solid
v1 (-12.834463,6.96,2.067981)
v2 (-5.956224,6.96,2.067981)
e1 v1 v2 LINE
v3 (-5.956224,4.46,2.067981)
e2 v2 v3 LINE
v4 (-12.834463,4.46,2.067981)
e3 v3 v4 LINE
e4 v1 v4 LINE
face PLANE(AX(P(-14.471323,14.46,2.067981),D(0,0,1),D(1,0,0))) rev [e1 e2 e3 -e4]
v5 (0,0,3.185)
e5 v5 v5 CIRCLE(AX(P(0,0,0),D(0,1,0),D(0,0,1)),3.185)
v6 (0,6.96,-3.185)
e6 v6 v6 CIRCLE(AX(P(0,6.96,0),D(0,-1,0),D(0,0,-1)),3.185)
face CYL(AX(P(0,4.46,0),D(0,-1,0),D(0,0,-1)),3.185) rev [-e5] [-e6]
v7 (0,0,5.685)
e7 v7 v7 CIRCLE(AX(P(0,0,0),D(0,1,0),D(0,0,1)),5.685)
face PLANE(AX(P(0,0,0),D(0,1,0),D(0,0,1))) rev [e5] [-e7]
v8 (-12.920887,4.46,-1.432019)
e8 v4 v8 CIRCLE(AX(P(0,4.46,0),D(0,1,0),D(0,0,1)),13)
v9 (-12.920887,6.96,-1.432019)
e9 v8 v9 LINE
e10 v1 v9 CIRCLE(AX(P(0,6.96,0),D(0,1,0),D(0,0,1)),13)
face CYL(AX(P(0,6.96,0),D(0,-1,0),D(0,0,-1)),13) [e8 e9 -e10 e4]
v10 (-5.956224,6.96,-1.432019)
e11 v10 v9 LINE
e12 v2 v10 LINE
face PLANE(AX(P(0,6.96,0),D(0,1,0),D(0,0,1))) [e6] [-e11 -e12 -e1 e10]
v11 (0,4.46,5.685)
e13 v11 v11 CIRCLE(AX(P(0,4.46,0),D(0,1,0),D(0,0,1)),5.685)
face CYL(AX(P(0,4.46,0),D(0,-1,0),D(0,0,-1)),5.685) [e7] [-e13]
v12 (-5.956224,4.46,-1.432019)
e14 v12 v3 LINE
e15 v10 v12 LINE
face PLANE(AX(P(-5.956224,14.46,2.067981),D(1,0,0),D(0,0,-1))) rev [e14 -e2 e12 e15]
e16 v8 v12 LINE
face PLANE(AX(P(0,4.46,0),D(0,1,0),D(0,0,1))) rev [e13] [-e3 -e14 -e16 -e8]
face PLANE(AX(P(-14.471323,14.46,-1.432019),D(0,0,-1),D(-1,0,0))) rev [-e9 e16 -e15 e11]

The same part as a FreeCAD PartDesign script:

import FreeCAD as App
import Part
import Sketcher


def add_polygon(sketch, points):
    """Adds a closed chain of lines whose ends are joined by coincident constraints."""
    first, n = sketch.GeometryCount, len(points)
    for a, b in zip(points, points[1:] + points[:1]):
        sketch.addGeometry(Part.LineSegment(App.Vector(*a, 0), App.Vector(*b, 0)), False)
    for i in range(n):
        sketch.addConstraint(Sketcher.Constraint("Coincident", first + i, 2, first + (i + 1) % n, 1))

doc = App.newDocument("Part")
params = doc.addObject("Spreadsheet::Sheet", "Params")
for row, (alias, value) in enumerate([
    ("sketch1_diameter", "11.37 mm"),
    ("sketch1_diameter2", "6.37 mm"),
    ("pad1_length", "4.46 mm"),
    ("sketch2_diameter", "26 mm"),
    ("pad2_length", "2.5 mm"),
    ("sketch3_diameter", "6.37 mm"),
    ("pocket1_length", "2.5 mm"),
    ("sketch4_height", "3.5 mm"),
    ("pocket2_length", "10 mm"),
], start=1):
    params.set(f"A{row}", alias)
    params.set(f"B{row}", "=" + value)
    params.setAlias(f"B{row}", alias)

body = doc.addObject("PartDesign::Body", "Body")

sketch1 = body.newObject("Sketcher::SketchObject", "Sketch")
sketch1.AttachmentSupport = (doc.getObject("XZ_Plane"), [""])
sketch1.MapMode = "FlatFace"
sketch1.addGeometry([
    Part.Circle(App.Vector(0, 0, 0), App.Vector(0, 0, 1), 5.7),
    Part.Circle(App.Vector(0, 0, 0), App.Vector(0, 0, 1), 3.2),
], False)
sketch1.addConstraint([
    Sketcher.Constraint("Coincident", 0, 3, -1, 1),
    Sketcher.Constraint("Coincident", 1, 3, -1, 1),
    Sketcher.Constraint("Diameter", 0, 11.37),
    Sketcher.Constraint("Diameter", 1, 6.37),
])
sketch1.setExpression("Constraints[2]", "Params.sketch1_diameter")
sketch1.setExpression("Constraints[3]", "Params.sketch1_diameter2")
pad1 = body.newObject("PartDesign::Pad", "Pad")
pad1.Profile = sketch1
pad1.setExpression("Length", "Params.pad1_length")
pad1.Reversed = True

sketch2 = body.newObject("Sketcher::SketchObject", "Sketch001")
sketch2.AttachmentSupport = (doc.getObject("XZ_Plane"), [""])
sketch2.MapMode = "FlatFace"
sketch2.AttachmentOffset = App.Placement(App.Vector(0, 0, -4.46), App.Rotation())
sketch2.addGeometry(Part.Circle(App.Vector(0, 0, 0), App.Vector(0, 0, 1), 13), False)
sketch2.addConstraint([
    Sketcher.Constraint("Coincident", 0, 3, -1, 1),
    Sketcher.Constraint("Diameter", 0, 26.0),
])
sketch2.setExpression("Constraints[1]", "Params.sketch2_diameter")
pad2 = body.newObject("PartDesign::Pad", "Pad001")
pad2.Profile = sketch2
pad2.setExpression("Length", "Params.pad2_length")
pad2.Reversed = True

sketch3 = body.newObject("Sketcher::SketchObject", "Sketch002")
sketch3.AttachmentSupport = (doc.getObject("XZ_Plane"), [""])
sketch3.MapMode = "FlatFace"
sketch3.AttachmentOffset = App.Placement(App.Vector(0, 0, -4.46), App.Rotation())
sketch3.addGeometry(Part.Circle(App.Vector(0, 0, 0), App.Vector(0, 0, 1), 3.2), False)
sketch3.addConstraint([
    Sketcher.Constraint("Coincident", 0, 3, -1, 1),
    Sketcher.Constraint("Diameter", 0, 6.37),
])
sketch3.setExpression("Constraints[1]", "Params.sketch3_diameter")
pocket1 = body.newObject("PartDesign::Pocket", "Pocket")
pocket1.Profile = sketch3
pocket1.setExpression("Length", "Params.pocket1_length")

sketch4 = body.newObject("Sketcher::SketchObject", "Sketch003")
sketch4.AttachmentSupport = (doc.getObject("XZ_Plane"), [""])
sketch4.MapMode = "FlatFace"
sketch4.AttachmentOffset = App.Placement(App.Vector(0, 0, -4.46), App.Rotation())
add_polygon(sketch4, [(-14.5, 2.1), (-14.5, -1.4), (-6, -1.4), (-6, 2.1)])
sketch4.addConstraint([
    Sketcher.Constraint("Vertical", 0),
    Sketcher.Constraint("Horizontal", 1),
    Sketcher.Constraint("Vertical", 2),
    Sketcher.Constraint("Horizontal", 3),
    Sketcher.Constraint("DistanceY", 0, 2, 0, 1, 3.5),
    Sketcher.Constraint("DistanceX", 1, 1, 1, 2, 8.515099),
    Sketcher.Constraint("DistanceY", 0, 2, -1, 1, 1.432019),
    Sketcher.Constraint("DistanceX", 0, 2, -1, 1, 14.471323),
])
sketch4.setExpression("Constraints[8]", "Params.sketch4_height")
pocket2 = body.newObject("PartDesign::Pocket", "Pocket001")
pocket2.Profile = sketch4
pocket2.setExpression("Length", "Params.pocket2_length")

doc.recompute()
